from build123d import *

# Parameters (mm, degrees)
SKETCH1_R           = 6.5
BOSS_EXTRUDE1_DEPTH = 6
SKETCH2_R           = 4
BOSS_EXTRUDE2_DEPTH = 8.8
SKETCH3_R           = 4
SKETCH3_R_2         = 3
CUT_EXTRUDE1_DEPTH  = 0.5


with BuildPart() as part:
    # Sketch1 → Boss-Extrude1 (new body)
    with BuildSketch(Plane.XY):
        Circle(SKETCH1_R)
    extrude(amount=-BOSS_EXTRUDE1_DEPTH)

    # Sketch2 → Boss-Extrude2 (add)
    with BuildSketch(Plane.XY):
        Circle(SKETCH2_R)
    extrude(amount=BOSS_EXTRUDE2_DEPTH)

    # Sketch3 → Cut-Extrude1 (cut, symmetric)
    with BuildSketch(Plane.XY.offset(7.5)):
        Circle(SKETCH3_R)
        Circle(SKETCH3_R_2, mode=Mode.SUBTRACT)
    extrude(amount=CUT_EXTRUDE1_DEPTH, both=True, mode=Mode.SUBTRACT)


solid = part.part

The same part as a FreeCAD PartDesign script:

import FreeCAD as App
import Part
import Sketcher
from FreeCAD import Vector
Q = App.Units.Quantity

doc = App.newDocument("Part")
body = doc.addObject("PartDesign::Body", "Body")

sketch1 = body.newObject("Sketcher::SketchObject", "Sketch")
sketch1.AttachmentSupport = (doc.getObject("XY_Plane"), [""])
sketch1.MapMode = "FlatFace"
sketch1.addGeometry(Part.Circle(Vector(0, 0, 0), Vector(0, 0, 1), 6), False)
sketch1.addConstraint(Sketcher.Constraint("Coincident", 0, 3, -1, 1))
sketch1.addConstraint(Sketcher.Constraint("Diameter", 0, Q("13 mm")))
pad1 = body.newObject("PartDesign::Pad", "Pad")
pad1.Profile = sketch1
pad1.Length = 6
pad1.Reversed = True

sketch2 = body.newObject("Sketcher::SketchObject", "Sketch001")
sketch2.AttachmentSupport = (doc.getObject("XY_Plane"), [""])
sketch2.MapMode = "FlatFace"
sketch2.addGeometry(Part.Circle(Vector(0, 0, 0), Vector(0, 0, 1), 4), False)
sketch2.addConstraint(Sketcher.Constraint("Coincident", 0, 3, -1, 1))
sketch2.addConstraint(Sketcher.Constraint("Diameter", 0, Q("8 mm")))
pad2 = body.newObject("PartDesign::Pad", "Pad001")
pad2.Profile = sketch2
pad2.Length = 8.8

sketch3 = body.newObject("Sketcher::SketchObject", "Sketch002")
sketch3.AttachmentSupport = (doc.getObject("XY_Plane"), [""])
sketch3.MapMode = "FlatFace"
sketch3.AttachmentOffset = App.Placement(Vector(0, 0, 7.5), App.Rotation())
sketch3.addGeometry(Part.Circle(Vector(0, 0, 0), Vector(0, 0, 1), 4), False)
sketch3.addGeometry(Part.Circle(Vector(0, 0, 0), Vector(0, 0, 1), 3), False)
sketch3.addConstraint(Sketcher.Constraint("Coincident", 0, 3, -1, 1))
sketch3.addConstraint(Sketcher.Constraint("Coincident", 1, 3, -1, 1))
sketch3.addConstraint(Sketcher.Constraint("Diameter", 0, Q("8 mm")))
sketch3.addConstraint(Sketcher.Constraint("Diameter", 1, Q("6 mm")))
pocket1 = body.newObject("PartDesign::Pocket", "Pocket")
pocket1.Profile = sketch3
pocket1.Length = 1
pocket1.Midplane = True

doc.recompute()
